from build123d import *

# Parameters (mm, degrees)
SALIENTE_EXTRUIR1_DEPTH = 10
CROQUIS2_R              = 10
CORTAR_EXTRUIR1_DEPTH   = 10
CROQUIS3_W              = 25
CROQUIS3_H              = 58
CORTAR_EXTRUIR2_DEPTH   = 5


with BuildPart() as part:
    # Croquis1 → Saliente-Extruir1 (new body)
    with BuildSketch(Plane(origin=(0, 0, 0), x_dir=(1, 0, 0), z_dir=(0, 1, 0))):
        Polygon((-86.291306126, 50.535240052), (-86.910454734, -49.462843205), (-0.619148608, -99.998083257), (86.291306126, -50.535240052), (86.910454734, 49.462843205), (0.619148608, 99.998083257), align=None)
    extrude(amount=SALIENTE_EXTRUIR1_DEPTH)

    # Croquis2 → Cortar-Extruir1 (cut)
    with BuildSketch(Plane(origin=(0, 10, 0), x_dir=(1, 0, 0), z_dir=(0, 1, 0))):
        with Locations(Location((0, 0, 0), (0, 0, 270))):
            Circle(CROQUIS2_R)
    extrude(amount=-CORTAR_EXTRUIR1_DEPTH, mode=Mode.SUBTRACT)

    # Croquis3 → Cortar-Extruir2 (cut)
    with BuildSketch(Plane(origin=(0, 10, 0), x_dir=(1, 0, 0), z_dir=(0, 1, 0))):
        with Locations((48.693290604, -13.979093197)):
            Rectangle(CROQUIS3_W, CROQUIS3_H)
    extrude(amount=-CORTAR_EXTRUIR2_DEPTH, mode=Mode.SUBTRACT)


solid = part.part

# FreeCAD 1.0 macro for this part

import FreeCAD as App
import Part
import Sketcher
from FreeCAD import Vector

doc = App.newDocument("Part")
body = doc.addObject("PartDesign::Body", "Body")

# Sketch on XZ plane
sketch1 = body.newObject("Sketcher::SketchObject", "Sketch")
sketch1.AttachmentSupport = (doc.getObject("XZ_Plane"), [""])
sketch1.MapMode = "FlatFace"
sketch1.addGeometry(Part.LineSegment(Vector(-86.291306, -50.53524, 0), Vector(-86.910455, 49.462843, 0)), False)
sketch1.addGeometry(Part.LineSegment(Vector(-86.910455, 49.462843, 0), Vector(-0.619149, 99.998083, 0)), False)
sketch1.addGeometry(Part.LineSegment(Vector(-0.619149, 99.998083, 0), Vector(86.291306, 50.53524, 0)), False)
sketch1.addGeometry(Part.LineSegment(Vector(86.291306, 50.53524, 0), Vector(86.910455, -49.462843, 0)), False)
sketch1.addGeometry(Part.LineSegment(Vector(86.910455, -49.462843, 0), Vector(0.619149, -99.998083, 0)), False)
sketch1.addGeometry(Part.LineSegment(Vector(0.619149, -99.998083, 0), Vector(-86.291306, -50.53524, 0)), False)
sketch1.addConstraint(Sketcher.Constraint("Coincident", 0, 2, 1, 1))
sketch1.addConstraint(Sketcher.Constraint("Coincident", 1, 2, 2, 1))
sketch1.addConstraint(Sketcher.Constraint("Coincident", 2, 2, 3, 1))
sketch1.addConstraint(Sketcher.Constraint("Coincident", 3, 2, 4, 1))
sketch1.addConstraint(Sketcher.Constraint("Coincident", 4, 2, 5, 1))
sketch1.addConstraint(Sketcher.Constraint("Coincident", 5, 2, 0, 1))
sketch1.addConstraint(Sketcher.Constraint("Symmetric", 0, 2, 3, 2, -1, 1))
sketch1.addConstraint(Sketcher.Constraint("Symmetric", 1, 2, 4, 2, -1, 1))
sketch1.addConstraint(Sketcher.Constraint("Symmetric", 2, 2, 5, 2, -1, 1))
sketch1.addConstraint(Sketcher.Constraint("Equal", 0, 1))
sketch1.addConstraint(Sketcher.Constraint("Equal", 1, 2))
sketch1.addConstraint(Sketcher.Constraint("Distance", 0, 100.0))
sketch1.addConstraint(Sketcher.Constraint("DistanceX", 1, 2, -1, 1, 0.619149))
sketch1.addConstraint(Sketcher.Constraint("DistanceY", -1, 1, 2, 2, 50.53524))
sketch1.addConstraint(Sketcher.Constraint("DistanceY", 0, 2, 1, 2, 50.53524))
pad1 = body.newObject("PartDesign::Pad", "Pad")
pad1.Profile = sketch1
pad1.Length = 10
pad1.Reversed = True

# Sketch on XZ plane
sketch2 = body.newObject("Sketcher::SketchObject", "Sketch001")
sketch2.AttachmentSupport = (doc.getObject("XZ_Plane"), [""])
sketch2.MapMode = "FlatFace"
sketch2.AttachmentOffset = App.Placement(Vector(0, 0, -10), App.Rotation())
sketch2.addGeometry(Part.Circle(Vector(0, 0, 0), Vector(0, 0, 1), 10), False)
sketch2.addConstraint(Sketcher.Constraint("Coincident", 0, 3, -1, 1))
sketch2.addConstraint(Sketcher.Constraint("Diameter", 0, 20.0))
pocket1 = body.newObject("PartDesign::Pocket", "Pocket")
pocket1.Profile = sketch2
pocket1.Length = 10
pocket1.Reversed = True

# Sketch on XZ plane
sketch3 = body.newObject("Sketcher::SketchObject", "Sketch002")
sketch3.AttachmentSupport = (doc.getObject("XZ_Plane"), [""])
sketch3.MapMode = "FlatFace"
sketch3.AttachmentOffset = App.Placement(Vector(0, 0, -10), App.Rotation())
sketch3.addGeometry(Part.LineSegment(Vector(36.193291, -15.020907, 0), Vector(36.193291, 42.979093, 0)), False)
sketch3.addGeometry(Part.LineSegment(Vector(36.193291, 42.979093, 0), Vector(61.193291, 42.979093, 0)), False)
sketch3.addGeometry(Part.LineSegment(Vector(61.193291, 42.979093, 0), Vector(61.193291, -15.020907, 0)), False)
sketch3.addGeometry(Part.LineSegment(Vector(61.193291, -15.020907, 0), Vector(36.193291, -15.020907, 0)), False)
sketch3.addConstraint(Sketcher.Constraint("Coincident", 0, 2, 1, 1))
sketch3.addConstraint(Sketcher.Constraint("Coincident", 1, 2, 2, 1))
sketch3.addConstraint(Sketcher.Constraint("Coincident", 2, 2, 3, 1))
sketch3.addConstraint(Sketcher.Constraint("Coincident", 3, 2, 0, 1))
sketch3.addConstraint(Sketcher.Constraint("Vertical", 0))
sketch3.addConstraint(Sketcher.Constraint("Horizontal", 1))
sketch3.addConstraint(Sketcher.Constraint("Vertical", 2))
sketch3.addConstraint(Sketcher.Constraint("Horizontal", 3))
sketch3.addConstraint(Sketcher.Constraint("DistanceX", 1, 1, 1, 2, 25.0))
sketch3.addConstraint(Sketcher.Constraint("DistanceY", 0, 1, 0, 2, 58.0))
sketch3.addConstraint(Sketcher.Constraint("DistanceX", -1, 1, 0, 2, 36.193291))
sketch3.addConstraint(Sketcher.Constraint("DistanceY", -1, 1, 0, 2, 42.979093))
pocket2 = body.newObject("PartDesign::Pocket", "Pocket001")
pocket2.Profile = sketch3
pocket2.Length = 5
pocket2.Reversed = True

doc.recompute()
